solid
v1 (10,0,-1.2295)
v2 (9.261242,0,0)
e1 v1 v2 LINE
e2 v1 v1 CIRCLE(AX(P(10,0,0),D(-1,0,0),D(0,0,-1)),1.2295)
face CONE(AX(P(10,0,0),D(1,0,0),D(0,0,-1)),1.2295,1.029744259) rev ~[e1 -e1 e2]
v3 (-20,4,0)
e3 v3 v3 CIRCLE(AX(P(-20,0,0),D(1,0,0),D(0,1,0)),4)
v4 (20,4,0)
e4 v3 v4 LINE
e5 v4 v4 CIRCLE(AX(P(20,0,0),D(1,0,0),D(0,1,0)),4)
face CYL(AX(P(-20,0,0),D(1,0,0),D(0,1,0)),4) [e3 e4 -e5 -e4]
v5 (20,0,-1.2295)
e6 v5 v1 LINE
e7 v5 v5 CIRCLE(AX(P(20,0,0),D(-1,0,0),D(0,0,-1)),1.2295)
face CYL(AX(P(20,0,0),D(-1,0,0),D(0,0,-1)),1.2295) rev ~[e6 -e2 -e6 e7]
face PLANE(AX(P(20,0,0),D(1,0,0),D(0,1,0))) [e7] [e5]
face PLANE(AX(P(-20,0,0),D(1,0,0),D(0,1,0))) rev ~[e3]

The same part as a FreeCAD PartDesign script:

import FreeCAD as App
import Part
import Sketcher

doc = App.newDocument("Part")
body = doc.addObject("PartDesign::Body", "Body")

sketch1 = body.newObject("Sketcher::SketchObject", "Sketch")
sketch1.AttachmentSupport = (doc.getObject("XY_Plane"), [""])
sketch1.MapMode = "FlatFace"
sketch1.addGeometry([
    Part.LineSegment(App.Vector(-20, 0, 0), App.Vector(20, 0, 0)),
    Part.LineSegment(App.Vector(20, 0, 0), App.Vector(20, 4, 0)),
    Part.LineSegment(App.Vector(20, 4, 0), App.Vector(-20, 4, 0)),
    Part.LineSegment(App.Vector(-20, 4, 0), App.Vector(-20, 0, 0)),
], False)
sketch1.addConstraint([
    Sketcher.Constraint("Coincident", 0, 2, 1, 1),
    Sketcher.Constraint("Coincident", 1, 2, 2, 1),
    Sketcher.Constraint("Coincident", 2, 2, 3, 1),
    Sketcher.Constraint("Coincident", 3, 2, 0, 1),
    Sketcher.Constraint("Horizontal", 0),
    Sketcher.Constraint("Vertical", 1),
    Sketcher.Constraint("Horizontal", 2),
    Sketcher.Constraint("Vertical", 3),
    Sketcher.Constraint("Symmetric", 0, 2, 3, 2, -1, 1),
    Sketcher.Constraint("DistanceX", 0, 1, 0, 2, 40.0),
    Sketcher.Constraint("DistanceY", 1, 1, 1, 2, 4.0),
])
revolution = body.newObject("PartDesign::Revolution", "Revolution")
revolution.Profile = sketch1
revolution.ReferenceAxis = (sketch1, ["H_Axis"])
revolution.Angle = 360

sketch2 = body.newObject("Sketcher::SketchObject", "Sketch001")
sketch2.AttachmentSupport = (doc.getObject("YZ_Plane"), [""])
sketch2.MapMode = "FlatFace"
sketch2.AttachmentOffset = App.Placement(App.Vector(0, 0, 20), App.Rotation())
sketch2.addGeometry(Part.Circle(App.Vector(0, 0, 0), App.Vector(0, 0, 1), 1.2), False)
sketch2.addConstraint([
    Sketcher.Constraint("Coincident", 0, 3, -1, 1),
    Sketcher.Constraint("Diameter", 0, 2.459),
])
doc.recompute()
hole = body.newObject("PartDesign::Hole", "Hole")
hole.Profile = sketch2
hole.ThreadType = "None"
hole.Diameter = 2.459
hole.DepthType = "Dimension"
hole.Depth = 10
hole.DrillPoint = "Angled"
hole.DrillPointAngle = 118

doc.recompute()
